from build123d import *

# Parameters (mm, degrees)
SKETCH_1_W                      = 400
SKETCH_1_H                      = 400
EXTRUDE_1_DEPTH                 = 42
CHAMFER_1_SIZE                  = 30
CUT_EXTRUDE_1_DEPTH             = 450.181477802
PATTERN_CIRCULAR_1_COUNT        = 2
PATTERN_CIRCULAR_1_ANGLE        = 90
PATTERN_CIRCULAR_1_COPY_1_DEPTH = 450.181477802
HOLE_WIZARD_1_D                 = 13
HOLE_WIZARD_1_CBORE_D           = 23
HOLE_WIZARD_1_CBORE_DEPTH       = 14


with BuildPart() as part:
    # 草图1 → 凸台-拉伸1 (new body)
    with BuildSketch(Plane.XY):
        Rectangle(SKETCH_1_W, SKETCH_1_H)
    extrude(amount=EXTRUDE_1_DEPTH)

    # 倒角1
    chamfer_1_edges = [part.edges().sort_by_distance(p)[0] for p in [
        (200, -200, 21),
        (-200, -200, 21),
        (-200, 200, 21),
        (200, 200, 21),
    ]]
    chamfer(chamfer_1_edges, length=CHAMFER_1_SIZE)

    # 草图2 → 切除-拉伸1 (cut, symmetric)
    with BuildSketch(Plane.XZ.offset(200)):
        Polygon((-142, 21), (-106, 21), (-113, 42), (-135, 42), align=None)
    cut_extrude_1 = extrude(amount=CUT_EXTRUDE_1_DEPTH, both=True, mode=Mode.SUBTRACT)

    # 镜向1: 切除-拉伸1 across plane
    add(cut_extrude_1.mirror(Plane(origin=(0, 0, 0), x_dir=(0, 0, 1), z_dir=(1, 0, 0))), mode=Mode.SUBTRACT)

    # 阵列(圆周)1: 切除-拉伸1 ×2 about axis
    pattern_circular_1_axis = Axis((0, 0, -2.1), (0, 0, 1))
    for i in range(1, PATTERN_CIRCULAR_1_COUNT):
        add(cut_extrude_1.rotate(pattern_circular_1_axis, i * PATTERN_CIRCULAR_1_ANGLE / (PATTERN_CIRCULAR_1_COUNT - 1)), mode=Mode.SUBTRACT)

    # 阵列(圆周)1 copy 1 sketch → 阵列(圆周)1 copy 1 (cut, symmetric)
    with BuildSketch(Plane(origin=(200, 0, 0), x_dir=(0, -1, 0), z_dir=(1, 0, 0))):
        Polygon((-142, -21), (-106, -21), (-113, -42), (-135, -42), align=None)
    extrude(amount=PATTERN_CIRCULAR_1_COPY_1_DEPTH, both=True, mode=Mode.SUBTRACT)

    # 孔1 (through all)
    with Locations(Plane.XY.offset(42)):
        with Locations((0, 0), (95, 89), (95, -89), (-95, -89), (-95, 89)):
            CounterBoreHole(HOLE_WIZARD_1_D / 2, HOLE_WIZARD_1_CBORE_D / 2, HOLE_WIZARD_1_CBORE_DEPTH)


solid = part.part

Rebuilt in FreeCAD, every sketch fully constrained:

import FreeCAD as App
import Part
import Sketcher
from FreeCAD import Vector


def edges_at(feature, points):
    """Names of the edges that pass closest to the given points."""
    edges = feature.Shape.Edges
    near = lambda p: min(range(len(edges)), key=lambda i: edges[i].distToShape(Part.Vertex(*p))[0])
    return sorted({f"Edge{near(p) + 1}" for p in points})

doc = App.newDocument("Part")
params = doc.addObject("Spreadsheet::Sheet", "Params")
for row, (alias, value) in enumerate([
    ("sketch1_width", "400 mm"),
    ("pad1_length", "42 mm"),
    ("chamfer_size", "30 mm"),
    ("sketch2_width", "36 mm"),
    ("sketch2_width2", "22 mm"),
    ("pocket1_length", "900.362956 mm"),
    ("sketch3_width", "36 mm"),
    ("sketch3_width2", "22 mm"),
    ("pocket2_length", "900.362956 mm"),
    ("sketch4_diameter", "13 mm"),
    ("hole_diameter", "13 mm"),
    ("hole_cbore_diameter", "23 mm"),
    ("hole_cbore_depth", "14 mm"),
], start=1):
    params.set(f"A{row}", alias)
    params.set(f"B{row}", "=" + value)
    params.setAlias(f"B{row}", alias)

body = doc.addObject("PartDesign::Body", "Body")

sketch1 = body.newObject("Sketcher::SketchObject", "Sketch")
sketch1.AttachmentSupport = (doc.getObject("XY_Plane"), [""])
sketch1.MapMode = "FlatFace"
sketch1.addGeometry([
    Part.LineSegment(Vector(-200, 200, 0), Vector(-200, -200, 0)),
    Part.LineSegment(Vector(-200, -200, 0), Vector(200, -200, 0)),
    Part.LineSegment(Vector(200, -200, 0), Vector(200, 200, 0)),
    Part.LineSegment(Vector(200, 200, 0), Vector(-200, 200, 0)),
], False)
sketch1.addConstraint([
    Sketcher.Constraint("Coincident", 0, 2, 1, 1),
    Sketcher.Constraint("Coincident", 1, 2, 2, 1),
    Sketcher.Constraint("Coincident", 2, 2, 3, 1),
    Sketcher.Constraint("Coincident", 3, 2, 0, 1),
    Sketcher.Constraint("Vertical", 0),
    Sketcher.Constraint("Horizontal", 1),
    Sketcher.Constraint("Vertical", 2),
    Sketcher.Constraint("Horizontal", 3),
    Sketcher.Constraint("Symmetric", 0, 2, 2, 2, -1, 1),
    Sketcher.Constraint("Equal", 3, 0),
    Sketcher.Constraint("DistanceX", 1, 1, 1, 2, 400.0),
])
sketch1.setExpression("Constraints[10]", "Params.sketch1_width")
pad1 = body.newObject("PartDesign::Pad", "Pad")
pad1.Profile = sketch1
pad1.setExpression("Length", "Params.pad1_length")
doc.recompute()

chamfer = body.newObject("PartDesign::Chamfer", "Chamfer")
chamfer.Base = (pad1, edges_at(pad1, [
    (200, -200, 21),
    (-200, -200, 21),
    (-200, 200, 21),
    (200, 200, 21),
]))
chamfer.setExpression("Size", "Params.chamfer_size")

sketch2 = body.newObject("Sketcher::SketchObject", "Sketch001")
sketch2.AttachmentSupport = (doc.getObject("XZ_Plane"), [""])
sketch2.MapMode = "FlatFace"
sketch2.AttachmentOffset = App.Placement(Vector(0, 0, 200), App.Rotation())
sketch2.addGeometry([
    Part.LineSegment(Vector(-142, 21, 0), Vector(-106, 21, 0)),
    Part.LineSegment(Vector(-106, 21, 0), Vector(-113, 42, 0)),
    Part.LineSegment(Vector(-113, 42, 0), Vector(-135, 42, 0)),
    Part.LineSegment(Vector(-135, 42, 0), Vector(-142, 21, 0)),
], False)
sketch2.addConstraint([
    Sketcher.Constraint("Coincident", 0, 2, 1, 1),
    Sketcher.Constraint("Coincident", 1, 2, 2, 1),
    Sketcher.Constraint("Coincident", 2, 2, 3, 1),
    Sketcher.Constraint("Coincident", 3, 2, 0, 1),
    Sketcher.Constraint("Horizontal", 0),
    Sketcher.Constraint("Horizontal", 2),
    Sketcher.Constraint("Equal", 1, 3),
    Sketcher.Constraint("DistanceX", 0, 1, 0, 2, 36.0),
    Sketcher.Constraint("DistanceX", 2, 2, 2, 1, 22.0),
    Sketcher.Constraint("DistanceX", 0, 2, -1, 1, 106.0),
    Sketcher.Constraint("DistanceY", -1, 1, 0, 2, 21.0),
    Sketcher.Constraint("DistanceY", -1, 1, 1, 2, 42.0),
])
sketch2.setExpression("Constraints[7]", "Params.sketch2_width")
sketch2.setExpression("Constraints[8]", "Params.sketch2_width2")
pocket1 = body.newObject("PartDesign::Pocket", "Pocket")
pocket1.Profile = sketch2
pocket1.setExpression("Length", "Params.pocket1_length")
pocket1.Midplane = True
doc.recompute()

mirrored = body.newObject("PartDesign::Mirrored", "Mirrored")
mirrored.Originals = [pocket1]
mirrored.MirrorPlane = (doc.getObject("YZ_Plane"), [""])
body.Tip = mirrored
doc.recompute()

polarpattern = body.newObject("PartDesign::PolarPattern", "PolarPattern")
polarpattern.Originals = [pocket1]
polarpattern.Axis = (doc.getObject("Z_Axis"), [""])
polarpattern.Angle = 90
polarpattern.Occurrences = 2
body.Tip = polarpattern

sketch3 = body.newObject("Sketcher::SketchObject", "Sketch002")
sketch3.AttachmentSupport = (doc.getObject("YZ_Plane"), [""])
sketch3.MapMode = "FlatFace"
sketch3.AttachmentOffset = App.Placement(Vector(0, 0, 200), App.Rotation())
sketch3.addGeometry([
    Part.LineSegment(Vector(106, 21, 0), Vector(142, 21, 0)),
    Part.LineSegment(Vector(142, 21, 0), Vector(135, 42, 0)),
    Part.LineSegment(Vector(135, 42, 0), Vector(113, 42, 0)),
    Part.LineSegment(Vector(113, 42, 0), Vector(106, 21, 0)),
], False)
sketch3.addConstraint([
    Sketcher.Constraint("Coincident", 0, 2, 1, 1),
    Sketcher.Constraint("Coincident", 1, 2, 2, 1),
    Sketcher.Constraint("Coincident", 2, 2, 3, 1),
    Sketcher.Constraint("Coincident", 3, 2, 0, 1),
    Sketcher.Constraint("Horizontal", 0),
    Sketcher.Constraint("Horizontal", 2),
    Sketcher.Constraint("Equal", 1, 3),
    Sketcher.Constraint("DistanceX", 0, 1, 0, 2, 36.0),
    Sketcher.Constraint("DistanceX", 2, 2, 2, 1, 22.0),
    Sketcher.Constraint("DistanceX", -1, 1, 0, 2, 142.0),
    Sketcher.Constraint("DistanceY", -1, 1, 0, 2, 21.0),
    Sketcher.Constraint("DistanceY", -1, 1, 1, 2, 42.0),
])
sketch3.setExpression("Constraints[7]", "Params.sketch3_width")
sketch3.setExpression("Constraints[8]", "Params.sketch3_width2")
pocket2 = body.newObject("PartDesign::Pocket", "Pocket001")
pocket2.Profile = sketch3
pocket2.setExpression("Length", "Params.pocket2_length")
pocket2.Midplane = True

sketch4 = body.newObject("Sketcher::SketchObject", "Sketch003")
sketch4.AttachmentSupport = (doc.getObject("XY_Plane"), [""])
sketch4.MapMode = "FlatFace"
sketch4.AttachmentOffset = App.Placement(Vector(0, 0, 42), App.Rotation())
sketch4.addGeometry([
    Part.Circle(Vector(0, 0, 0), Vector(0, 0, 1), 6.5),
    Part.Circle(Vector(95, 89, 0), Vector(0, 0, 1), 6.5),
    Part.Circle(Vector(95, -89, 0), Vector(0, 0, 1), 6.5),
    Part.Circle(Vector(-95, -89, 0), Vector(0, 0, 1), 6.5),
    Part.Circle(Vector(-95, 89, 0), Vector(0, 0, 1), 6.5),
], False)
sketch4.addConstraint([
    Sketcher.Constraint("Coincident", 0, 3, -1, 1),
    Sketcher.Constraint("Equal", 0, 1),
    Sketcher.Constraint("Equal", 1, 2),
    Sketcher.Constraint("Equal", 2, 3),
    Sketcher.Constraint("Equal", 3, 4),
    Sketcher.Constraint("Symmetric", 1, 3, 3, 3, -1, 1),
    Sketcher.Constraint("Symmetric", 2, 3, 4, 3, -1, 1),
    Sketcher.Constraint("Symmetric", 2, 3, 3, 3, -2),
    Sketcher.Constraint("Diameter", 0, 13.0),
    Sketcher.Constraint("DistanceX", -1, 1, 1, 3, 95.0),
    Sketcher.Constraint("DistanceY", -1, 1, 1, 3, 89.0),
])
sketch4.setExpression("Constraints[8]", "Params.sketch4_diameter")
doc.recompute()
hole = body.newObject("PartDesign::Hole", "Hole")
hole.Profile = sketch4
hole.ThreadType = "None"
hole.setExpression("Diameter", "Params.hole_diameter")
hole.DepthType = "ThroughAll"
hole.HoleCutType = "Counterbore"
hole.setExpression("HoleCutDiameter", "Params.hole_cbore_diameter")
hole.setExpression("HoleCutDepth", "Params.hole_cbore_depth")

doc.recompute()
